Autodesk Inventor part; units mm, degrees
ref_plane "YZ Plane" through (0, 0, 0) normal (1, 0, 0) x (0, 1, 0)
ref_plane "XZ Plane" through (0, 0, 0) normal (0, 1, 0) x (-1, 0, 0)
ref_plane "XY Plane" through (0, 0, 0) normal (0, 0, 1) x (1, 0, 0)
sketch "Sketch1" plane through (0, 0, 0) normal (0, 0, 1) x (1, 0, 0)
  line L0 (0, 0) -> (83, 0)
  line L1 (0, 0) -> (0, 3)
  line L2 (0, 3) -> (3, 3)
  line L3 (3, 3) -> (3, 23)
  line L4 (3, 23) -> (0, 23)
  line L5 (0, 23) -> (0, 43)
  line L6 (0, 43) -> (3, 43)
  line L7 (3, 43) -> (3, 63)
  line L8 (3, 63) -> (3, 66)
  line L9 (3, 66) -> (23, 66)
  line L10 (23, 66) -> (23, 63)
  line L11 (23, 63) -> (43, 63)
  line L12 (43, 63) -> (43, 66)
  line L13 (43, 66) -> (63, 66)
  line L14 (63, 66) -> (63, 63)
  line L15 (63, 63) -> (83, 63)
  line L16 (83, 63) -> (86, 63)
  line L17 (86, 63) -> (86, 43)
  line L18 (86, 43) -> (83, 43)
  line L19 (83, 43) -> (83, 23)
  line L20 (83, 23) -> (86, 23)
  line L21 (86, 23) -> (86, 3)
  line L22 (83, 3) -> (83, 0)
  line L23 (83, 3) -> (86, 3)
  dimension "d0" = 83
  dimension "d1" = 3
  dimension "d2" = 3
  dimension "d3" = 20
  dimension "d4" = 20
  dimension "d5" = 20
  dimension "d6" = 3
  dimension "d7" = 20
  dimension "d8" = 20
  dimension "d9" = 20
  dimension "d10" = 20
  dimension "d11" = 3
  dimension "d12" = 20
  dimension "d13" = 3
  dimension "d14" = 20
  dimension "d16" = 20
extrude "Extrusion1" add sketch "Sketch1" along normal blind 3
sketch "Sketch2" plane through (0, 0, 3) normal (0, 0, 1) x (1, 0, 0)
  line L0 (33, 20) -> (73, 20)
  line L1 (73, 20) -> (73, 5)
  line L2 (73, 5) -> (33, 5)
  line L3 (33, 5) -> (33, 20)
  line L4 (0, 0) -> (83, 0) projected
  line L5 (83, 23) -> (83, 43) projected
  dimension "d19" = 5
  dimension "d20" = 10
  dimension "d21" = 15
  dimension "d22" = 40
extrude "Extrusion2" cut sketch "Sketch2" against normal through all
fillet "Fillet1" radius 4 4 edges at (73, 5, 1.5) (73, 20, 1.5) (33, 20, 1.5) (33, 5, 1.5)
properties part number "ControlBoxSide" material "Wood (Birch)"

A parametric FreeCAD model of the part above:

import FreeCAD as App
import Part
import Sketcher

V = App.Vector


def edges_at(feature, points):
    """Names of the edges that pass closest to the given points."""
    edges = feature.Shape.Edges
    near = lambda p: min(range(len(edges)), key=lambda i: edges[i].distToShape(Part.Vertex(*p))[0])
    return sorted({f"Edge{near(p) + 1}" for p in points})


def add_polygon(sketch, points):
    """Adds a closed chain of lines whose ends are joined by coincident constraints."""
    first, n = sketch.GeometryCount, len(points)
    for a, b in zip(points, points[1:] + points[:1]):
        sketch.addGeometry(Part.LineSegment(App.Vector(*a, 0), App.Vector(*b, 0)), False)
    for i in range(n):
        sketch.addConstraint(Sketcher.Constraint("Coincident", first + i, 2, first + (i + 1) % n, 1))

doc = App.newDocument("Part")
body = doc.addObject("PartDesign::Body", "Body")

# Sketch on XY plane
sketch1 = doc.addObject("Sketcher::SketchObject", "Sketch")
body.addObject(sketch1)
sketch1.AttachmentSupport = (doc.XY_Plane, [""])
sketch1.MapMode = "FlatFace"
add_polygon(sketch1, [(0, 3), (0, 0), (83, 0), (83, 3), (86, 3), (86, 23), (83, 23), (83, 43), (86, 43), (86, 63), (63, 63), (63, 66), (43, 66), (43, 63), (23, 63), (23, 66), (3, 66), (3, 43), (0, 43), (0, 23), (3, 23), (3, 3)])  # lines 0-21
sketch1.addConstraint(Sketcher.Constraint("Vertical", 0))
sketch1.addConstraint(Sketcher.Constraint("Horizontal", 1))
sketch1.addConstraint(Sketcher.Constraint("Vertical", 2))
sketch1.addConstraint(Sketcher.Constraint("Horizontal", 3))
sketch1.addConstraint(Sketcher.Constraint("Vertical", 4))
sketch1.addConstraint(Sketcher.Constraint("Horizontal", 5))
sketch1.addConstraint(Sketcher.Constraint("Vertical", 6))
sketch1.addConstraint(Sketcher.Constraint("Horizontal", 7))
sketch1.addConstraint(Sketcher.Constraint("Vertical", 8))
sketch1.addConstraint(Sketcher.Constraint("Horizontal", 9))
sketch1.addConstraint(Sketcher.Constraint("Vertical", 10))
sketch1.addConstraint(Sketcher.Constraint("Horizontal", 11))
sketch1.addConstraint(Sketcher.Constraint("Vertical", 12))
sketch1.addConstraint(Sketcher.Constraint("Horizontal", 13))
sketch1.addConstraint(Sketcher.Constraint("Vertical", 14))
sketch1.addConstraint(Sketcher.Constraint("Horizontal", 15))
sketch1.addConstraint(Sketcher.Constraint("Vertical", 16))
sketch1.addConstraint(Sketcher.Constraint("Horizontal", 17))
sketch1.addConstraint(Sketcher.Constraint("Vertical", 18))
sketch1.addConstraint(Sketcher.Constraint("Horizontal", 19))
sketch1.addConstraint(Sketcher.Constraint("Vertical", 20))
sketch1.addConstraint(Sketcher.Constraint("Horizontal", 21))
sketch1.addConstraint(Sketcher.Constraint("Coincident", 0, 2, -1, 1))
sketch1.addConstraint(Sketcher.Constraint("PointOnObject", 17, 2, -2))
sketch1.addConstraint(Sketcher.Constraint("Horizontal", 9, 2, 12, 2))
sketch1.addConstraint(Sketcher.Constraint("Horizontal", 11, 2, 14, 2))
sketch1.addConstraint(Sketcher.Constraint("Horizontal", 7, 2, 16, 2))
sketch1.addConstraint(Sketcher.Constraint("Horizontal", 5, 2, 18, 2))
sketch1.addConstraint(Sketcher.Constraint("Horizontal", 3, 2, 20, 2))
sketch1.addConstraint(Sketcher.Constraint("Vertical", 2, 2, 5, 2))
sketch1.addConstraint(Sketcher.Constraint("Vertical", 4, 2, 7, 2))
sketch1.addConstraint(Sketcher.Constraint("Vertical", 16, 2, 19, 2))
sketch1.addConstraint(Sketcher.Constraint("Equal", 11, 13))
sketch1.addConstraint(Sketcher.Constraint("Equal", 13, 15))
sketch1.addConstraint(Sketcher.Constraint("Equal", 7, 17))
sketch1.addConstraint(Sketcher.Constraint("Equal", 21, 0))
sketch1.addConstraint(Sketcher.Constraint("Equal", 15, 4))
sketch1.addConstraint(Sketcher.Constraint("Equal", 4, 6))
sketch1.addConstraint(Sketcher.Constraint("Equal", 6, 8))
sketch1.addConstraint(Sketcher.Constraint("Equal", 2, 10))
sketch1.addConstraint(Sketcher.Constraint("Equal", 9, 16))
sketch1.addConstraint(Sketcher.Constraint("DistanceX", 1, 1, 1, 2, 83.0))
sketch1.addConstraint(Sketcher.Constraint("DistanceX", 3, 1, 3, 2, 3.0))
pad1 = doc.addObject("PartDesign::Pad", "Pad")
body.addObject(pad1)
pad1.Profile = sketch1
pad1.Length = 3

# Sketch on XY plane
sketch2 = doc.addObject("Sketcher::SketchObject", "Sketch001")
body.addObject(sketch2)
sketch2.AttachmentSupport = (doc.XY_Plane, [""])
sketch2.MapMode = "FlatFace"
sketch2.AttachmentOffset = App.Placement(V(0, 0, 3), App.Rotation())
add_polygon(sketch2, [(73, 20), (33, 20), (33, 5), (73, 5)])  # lines 0-3
sketch2.addConstraint(Sketcher.Constraint("Horizontal", 0))
sketch2.addConstraint(Sketcher.Constraint("Vertical", 1))
sketch2.addConstraint(Sketcher.Constraint("Horizontal", 2))
sketch2.addConstraint(Sketcher.Constraint("Vertical", 3))
sketch2.addConstraint(Sketcher.Constraint("DistanceX", 0, 2, 0, 1, 40.0))
sketch2.addConstraint(Sketcher.Constraint("DistanceY", 1, 2, 1, 1, 15.0))
sketch2.addConstraint(Sketcher.Constraint("DistanceY", -1, 1, 1, 2, 5.0))
sketch2.addConstraint(Sketcher.Constraint("DistanceX", -1, 1, 0, 2, 33.0))
pocket1 = doc.addObject("PartDesign::Pocket", "Pocket")
body.addObject(pocket1)
pocket1.Profile = sketch2
pocket1.Type = "ThroughAll"
doc.recompute()

fillet = doc.addObject("PartDesign::Fillet", "Fillet")
body.addObject(fillet)
fillet.Base = (pocket1, edges_at(pocket1, [
    (73, 5, 1.5),
    (73, 20, 1.5),
    (33, 20, 1.5),
    (33, 5, 1.5),
]))
fillet.Radius = 4

doc.recompute()
